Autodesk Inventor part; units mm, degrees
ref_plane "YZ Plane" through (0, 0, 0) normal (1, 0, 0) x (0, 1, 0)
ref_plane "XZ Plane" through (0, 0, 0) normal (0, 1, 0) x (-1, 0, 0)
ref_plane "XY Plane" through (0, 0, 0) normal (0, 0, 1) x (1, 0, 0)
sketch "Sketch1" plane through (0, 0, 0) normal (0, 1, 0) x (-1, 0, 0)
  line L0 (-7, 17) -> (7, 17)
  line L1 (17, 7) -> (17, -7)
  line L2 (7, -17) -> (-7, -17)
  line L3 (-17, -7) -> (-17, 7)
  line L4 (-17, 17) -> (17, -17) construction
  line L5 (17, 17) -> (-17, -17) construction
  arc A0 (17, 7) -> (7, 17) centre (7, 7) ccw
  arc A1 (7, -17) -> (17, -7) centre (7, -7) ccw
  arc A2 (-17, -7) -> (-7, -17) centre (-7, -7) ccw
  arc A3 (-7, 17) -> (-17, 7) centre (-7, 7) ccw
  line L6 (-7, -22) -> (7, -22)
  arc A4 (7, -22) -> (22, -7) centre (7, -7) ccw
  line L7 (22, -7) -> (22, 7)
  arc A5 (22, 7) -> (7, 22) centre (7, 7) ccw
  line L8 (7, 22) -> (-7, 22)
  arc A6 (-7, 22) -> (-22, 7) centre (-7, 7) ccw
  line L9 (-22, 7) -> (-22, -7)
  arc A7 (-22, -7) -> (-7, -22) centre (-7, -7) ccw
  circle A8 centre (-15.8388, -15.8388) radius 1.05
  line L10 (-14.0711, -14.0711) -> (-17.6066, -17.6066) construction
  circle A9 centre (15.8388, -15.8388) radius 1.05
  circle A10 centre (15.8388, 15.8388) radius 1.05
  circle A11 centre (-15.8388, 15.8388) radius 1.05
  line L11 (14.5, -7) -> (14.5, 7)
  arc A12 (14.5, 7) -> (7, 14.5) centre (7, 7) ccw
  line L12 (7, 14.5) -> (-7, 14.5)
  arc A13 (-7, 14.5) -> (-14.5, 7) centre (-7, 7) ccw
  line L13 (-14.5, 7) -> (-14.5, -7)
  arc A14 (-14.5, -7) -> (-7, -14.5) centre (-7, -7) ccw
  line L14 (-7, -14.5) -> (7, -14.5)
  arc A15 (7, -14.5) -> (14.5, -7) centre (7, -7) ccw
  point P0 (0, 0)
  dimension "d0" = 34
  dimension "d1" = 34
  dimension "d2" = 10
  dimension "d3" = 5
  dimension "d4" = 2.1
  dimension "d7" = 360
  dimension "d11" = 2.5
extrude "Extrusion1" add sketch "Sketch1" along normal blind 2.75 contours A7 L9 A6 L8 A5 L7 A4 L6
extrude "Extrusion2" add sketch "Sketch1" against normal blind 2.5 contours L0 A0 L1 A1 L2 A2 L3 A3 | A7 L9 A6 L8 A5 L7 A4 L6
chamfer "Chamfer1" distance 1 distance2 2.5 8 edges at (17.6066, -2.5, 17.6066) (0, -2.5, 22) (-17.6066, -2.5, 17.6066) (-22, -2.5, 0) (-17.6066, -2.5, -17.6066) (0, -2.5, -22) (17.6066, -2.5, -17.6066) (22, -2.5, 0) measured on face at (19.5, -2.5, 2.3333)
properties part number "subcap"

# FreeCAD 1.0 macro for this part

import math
import FreeCAD as App
import Part
import Sketcher
from FreeCAD import Vector
Q = App.Units.Quantity


def edges_at(feature, points):
    """Names of the edges that pass closest to the given points."""
    edges = feature.Shape.Edges
    near = lambda p: min(range(len(edges)), key=lambda i: edges[i].distToShape(Part.Vertex(*p))[0])
    return sorted({f"Edge{near(p) + 1}" for p in points})

doc = App.newDocument("Part")
body = doc.addObject("PartDesign::Body", "Body")

# Sketch on XZ plane
sketch1 = body.newObject("Sketcher::SketchObject", "Sketch")
sketch1.AttachmentSupport = (doc.getObject("XZ_Plane"), [""])
sketch1.MapMode = "FlatFace"
sketch1.addGeometry(Part.ArcOfCircle(Part.Circle(Vector(7, -7, 0), Vector(0, 0, 1), 15), math.radians(-90), math.radians(0)), False)
sketch1.addGeometry(Part.LineSegment(Vector(7, -22, 0), Vector(-7, -22, 0)), False)
sketch1.addGeometry(Part.ArcOfCircle(Part.Circle(Vector(-7, -7, 0), Vector(0, 0, 1), 15), math.radians(180), math.radians(270)), False)
sketch1.addGeometry(Part.LineSegment(Vector(-22, -7, 0), Vector(-22, 7, 0)), False)
sketch1.addGeometry(Part.ArcOfCircle(Part.Circle(Vector(-7, 7, 0), Vector(0, 0, 1), 15), math.radians(90), math.radians(180)), False)
sketch1.addGeometry(Part.LineSegment(Vector(-7, 22, 0), Vector(7, 22, 0)), False)
sketch1.addGeometry(Part.ArcOfCircle(Part.Circle(Vector(7, 7, 0), Vector(0, 0, 1), 15), math.radians(0), math.radians(90)), False)
sketch1.addGeometry(Part.LineSegment(Vector(22, 7, 0), Vector(22, -7, 0)), False)
sketch1.addGeometry(Part.Circle(Vector(15.8388, -15.8388, 0), Vector(0, 0, 1), 1.05), False)
sketch1.addGeometry(Part.Circle(Vector(-15.8388, -15.8388, 0), Vector(0, 0, 1), 1.05), False)
sketch1.addGeometry(Part.Circle(Vector(15.8388, 15.8388, 0), Vector(0, 0, 1), 1.05), False)
sketch1.addGeometry(Part.ArcOfCircle(Part.Circle(Vector(7, 7, 0), Vector(0, 0, 1), 10), math.radians(0), math.radians(90)), False)
sketch1.addGeometry(Part.LineSegment(Vector(7, 17, 0), Vector(-7, 17, 0)), False)
sketch1.addGeometry(Part.ArcOfCircle(Part.Circle(Vector(-7, 7, 0), Vector(0, 0, 1), 10), math.radians(90), math.radians(180)), False)
sketch1.addGeometry(Part.LineSegment(Vector(-17, 7, 0), Vector(-17, -7, 0)), False)
sketch1.addGeometry(Part.ArcOfCircle(Part.Circle(Vector(-7, -7, 0), Vector(0, 0, 1), 10), math.radians(180), math.radians(270)), False)
sketch1.addGeometry(Part.LineSegment(Vector(-7, -17, 0), Vector(7, -17, 0)), False)
sketch1.addGeometry(Part.ArcOfCircle(Part.Circle(Vector(7, -7, 0), Vector(0, 0, 1), 10), math.radians(-90), math.radians(0)), False)
sketch1.addGeometry(Part.LineSegment(Vector(17, -7, 0), Vector(17, 7, 0)), False)
sketch1.addGeometry(Part.Circle(Vector(-15.8388, 15.8388, 0), Vector(0, 0, 1), 1.05), False)
sketch1.addConstraint(Sketcher.Constraint("Tangent", 0, 1, 1, 1))
sketch1.addConstraint(Sketcher.Constraint("Tangent", 1, 2, 2, 2))
sketch1.addConstraint(Sketcher.Constraint("Tangent", 2, 1, 3, 1))
sketch1.addConstraint(Sketcher.Constraint("Tangent", 3, 2, 4, 2))
sketch1.addConstraint(Sketcher.Constraint("Tangent", 4, 1, 5, 1))
sketch1.addConstraint(Sketcher.Constraint("Tangent", 5, 2, 6, 2))
sketch1.addConstraint(Sketcher.Constraint("Tangent", 6, 1, 7, 1))
sketch1.addConstraint(Sketcher.Constraint("Tangent", 7, 2, 0, 2))
sketch1.addConstraint(Sketcher.Constraint("Tangent", 11, 2, 12, 1))
sketch1.addConstraint(Sketcher.Constraint("Tangent", 12, 2, 13, 1))
sketch1.addConstraint(Sketcher.Constraint("Tangent", 13, 2, 14, 1))
sketch1.addConstraint(Sketcher.Constraint("Tangent", 14, 2, 15, 1))
sketch1.addConstraint(Sketcher.Constraint("Tangent", 15, 2, 16, 1))
sketch1.addConstraint(Sketcher.Constraint("Tangent", 16, 2, 17, 1))
sketch1.addConstraint(Sketcher.Constraint("Tangent", 17, 2, 18, 1))
sketch1.addConstraint(Sketcher.Constraint("Tangent", 18, 2, 11, 1))
sketch1.addConstraint(Sketcher.Constraint("Horizontal", 1))
sketch1.addConstraint(Sketcher.Constraint("Vertical", 3))
sketch1.addConstraint(Sketcher.Constraint("Horizontal", 5))
sketch1.addConstraint(Sketcher.Constraint("Vertical", 7))
sketch1.addConstraint(Sketcher.Constraint("Horizontal", 12))
sketch1.addConstraint(Sketcher.Constraint("Vertical", 14))
sketch1.addConstraint(Sketcher.Constraint("Horizontal", 16))
sketch1.addConstraint(Sketcher.Constraint("Vertical", 18))
sketch1.addConstraint(Sketcher.Constraint("Coincident", 11, 3, 6, 3))
sketch1.addConstraint(Sketcher.Constraint("Coincident", 13, 3, 4, 3))
sketch1.addConstraint(Sketcher.Constraint("Coincident", 15, 3, 2, 3))
sketch1.addConstraint(Sketcher.Constraint("Equal", 0, 2))
sketch1.addConstraint(Sketcher.Constraint("Equal", 2, 4))
sketch1.addConstraint(Sketcher.Constraint("Equal", 4, 6))
sketch1.addConstraint(Sketcher.Constraint("Equal", 8, 9))
sketch1.addConstraint(Sketcher.Constraint("Equal", 9, 10))
sketch1.addConstraint(Sketcher.Constraint("Equal", 15, 17))
sketch1.addConstraint(Sketcher.Constraint("Equal", 10, 19))
sketch1.addConstraint(Sketcher.Constraint("Symmetric", 0, 3, 4, 3, -1, 1))
sketch1.addConstraint(Sketcher.Constraint("Symmetric", 9, 3, 10, 3, -1, 1))
sketch1.addConstraint(Sketcher.Constraint("Symmetric", 8, 3, 19, 3, -1, 1))
sketch1.addConstraint(Sketcher.Constraint("Symmetric", 8, 3, 9, 3, -2))
sketch1.addConstraint(Sketcher.Constraint("Equal", 16, 3))
sketch1.addConstraint(Sketcher.Constraint("Radius", 11, Q("10 mm")))
sketch1.addConstraint(Sketcher.Constraint("Diameter", 8, Q("2.1 mm")))
sketch1.addConstraint(Sketcher.Constraint("Radius", 0, Q("15 mm")))
sketch1.addConstraint(Sketcher.Constraint("DistanceX", 1, 2, 1, 1, Q("14 mm")))
sketch1.addConstraint(Sketcher.Constraint("DistanceX", -1, 1, 8, 3, Q("15.8388 mm")))
sketch1.addConstraint(Sketcher.Constraint("DistanceY", 8, 3, -1, 1, Q("15.8388 mm")))
pad1 = body.newObject("PartDesign::Pad", "Pad")
pad1.Profile = sketch1
pad1.Length = 2.75
pad1.Reversed = True

# Sketch on XZ plane
sketch2 = body.newObject("Sketcher::SketchObject", "Sketch001")
sketch2.AttachmentSupport = (doc.getObject("XZ_Plane"), [""])
sketch2.MapMode = "FlatFace"
sketch2.addGeometry(Part.ArcOfCircle(Part.Circle(Vector(7, -7, 0), Vector(0, 0, 1), 15), math.radians(-90), math.radians(0)), False)
sketch2.addGeometry(Part.LineSegment(Vector(7, -22, 0), Vector(-7, -22, 0)), False)
sketch2.addGeometry(Part.ArcOfCircle(Part.Circle(Vector(-7, -7, 0), Vector(0, 0, 1), 15), math.radians(180), math.radians(270)), False)
sketch2.addGeometry(Part.LineSegment(Vector(-22, -7, 0), Vector(-22, 7, 0)), False)
sketch2.addGeometry(Part.ArcOfCircle(Part.Circle(Vector(-7, 7, 0), Vector(0, 0, 1), 15), math.radians(90), math.radians(180)), False)
sketch2.addGeometry(Part.LineSegment(Vector(-7, 22, 0), Vector(7, 22, 0)), False)
sketch2.addGeometry(Part.ArcOfCircle(Part.Circle(Vector(7, 7, 0), Vector(0, 0, 1), 15), math.radians(0), math.radians(90)), False)
sketch2.addGeometry(Part.LineSegment(Vector(22, 7, 0), Vector(22, -7, 0)), False)
sketch2.addGeometry(Part.LineSegment(Vector(-14.5, 7, 0), Vector(-14.5, -7, 0)), False)
sketch2.addGeometry(Part.ArcOfCircle(Part.Circle(Vector(-7, -7, 0), Vector(0, 0, 1), 7.5), math.radians(180), math.radians(270)), False)
sketch2.addGeometry(Part.LineSegment(Vector(-7, -14.5, 0), Vector(7, -14.5, 0)), False)
sketch2.addGeometry(Part.ArcOfCircle(Part.Circle(Vector(7, -7, 0), Vector(0, 0, 1), 7.5), math.radians(-90), math.radians(0)), False)
sketch2.addGeometry(Part.LineSegment(Vector(14.5, -7, 0), Vector(14.5, 7, 0)), False)
sketch2.addGeometry(Part.ArcOfCircle(Part.Circle(Vector(7, 7, 0), Vector(0, 0, 1), 7.5), math.radians(0), math.radians(90)), False)
sketch2.addGeometry(Part.LineSegment(Vector(7, 14.5, 0), Vector(-7, 14.5, 0)), False)
sketch2.addGeometry(Part.ArcOfCircle(Part.Circle(Vector(-7, 7, 0), Vector(0, 0, 1), 7.5), math.radians(90), math.radians(180)), False)
sketch2.addGeometry(Part.Circle(Vector(15.8388, -15.8388, 0), Vector(0, 0, 1), 1.05), False)
sketch2.addGeometry(Part.Circle(Vector(-15.8388, -15.8388, 0), Vector(0, 0, 1), 1.05), False)
sketch2.addGeometry(Part.Circle(Vector(15.8388, 15.8388, 0), Vector(0, 0, 1), 1.05), False)
sketch2.addGeometry(Part.Circle(Vector(-15.8388, 15.8388, 0), Vector(0, 0, 1), 1.05), False)
sketch2.addConstraint(Sketcher.Constraint("Tangent", 0, 1, 1, 1))
sketch2.addConstraint(Sketcher.Constraint("Tangent", 1, 2, 2, 2))
sketch2.addConstraint(Sketcher.Constraint("Tangent", 2, 1, 3, 1))
sketch2.addConstraint(Sketcher.Constraint("Tangent", 3, 2, 4, 2))
sketch2.addConstraint(Sketcher.Constraint("Tangent", 4, 1, 5, 1))
sketch2.addConstraint(Sketcher.Constraint("Tangent", 5, 2, 6, 2))
sketch2.addConstraint(Sketcher.Constraint("Tangent", 6, 1, 7, 1))
sketch2.addConstraint(Sketcher.Constraint("Tangent", 7, 2, 0, 2))
sketch2.addConstraint(Sketcher.Constraint("Tangent", 8, 2, 9, 1))
sketch2.addConstraint(Sketcher.Constraint("Tangent", 9, 2, 10, 1))
sketch2.addConstraint(Sketcher.Constraint("Tangent", 10, 2, 11, 1))
sketch2.addConstraint(Sketcher.Constraint("Tangent", 11, 2, 12, 1))
sketch2.addConstraint(Sketcher.Constraint("Tangent", 12, 2, 13, 1))
sketch2.addConstraint(Sketcher.Constraint("Tangent", 13, 2, 14, 1))
sketch2.addConstraint(Sketcher.Constraint("Tangent", 14, 2, 15, 1))
sketch2.addConstraint(Sketcher.Constraint("Tangent", 15, 2, 8, 1))
sketch2.addConstraint(Sketcher.Constraint("Horizontal", 1))
sketch2.addConstraint(Sketcher.Constraint("Vertical", 3))
sketch2.addConstraint(Sketcher.Constraint("Horizontal", 5))
sketch2.addConstraint(Sketcher.Constraint("Vertical", 7))
sketch2.addConstraint(Sketcher.Constraint("Vertical", 8))
sketch2.addConstraint(Sketcher.Constraint("Horizontal", 10))
sketch2.addConstraint(Sketcher.Constraint("Vertical", 12))
sketch2.addConstraint(Sketcher.Constraint("Horizontal", 14))
sketch2.addConstraint(Sketcher.Constraint("Coincident", 9, 3, 2, 3))
sketch2.addConstraint(Sketcher.Constraint("Coincident", 11, 3, 0, 3))
sketch2.addConstraint(Sketcher.Constraint("Coincident", 13, 3, 6, 3))
sketch2.addConstraint(Sketcher.Constraint("Equal", 0, 2))
sketch2.addConstraint(Sketcher.Constraint("Equal", 2, 4))
sketch2.addConstraint(Sketcher.Constraint("Equal", 4, 6))
sketch2.addConstraint(Sketcher.Constraint("Equal", 13, 15))
sketch2.addConstraint(Sketcher.Constraint("Equal", 16, 17))
sketch2.addConstraint(Sketcher.Constraint("Equal", 17, 18))
sketch2.addConstraint(Sketcher.Constraint("Equal", 18, 19))
sketch2.addConstraint(Sketcher.Constraint("Symmetric", 0, 3, 4, 3, -1, 1))
sketch2.addConstraint(Sketcher.Constraint("Symmetric", 17, 3, 18, 3, -1, 1))
sketch2.addConstraint(Sketcher.Constraint("Symmetric", 16, 3, 19, 3, -1, 1))
sketch2.addConstraint(Sketcher.Constraint("Symmetric", 16, 3, 17, 3, -2))
sketch2.addConstraint(Sketcher.Constraint("Equal", 14, 3))
sketch2.addConstraint(Sketcher.Constraint("Diameter", 16, Q("2.1 mm")))
sketch2.addConstraint(Sketcher.Constraint("Radius", 0, Q("15 mm")))
sketch2.addConstraint(Sketcher.Constraint("Radius", 9, Q("7.5 mm")))
sketch2.addConstraint(Sketcher.Constraint("DistanceX", 1, 2, 1, 1, Q("14 mm")))
sketch2.addConstraint(Sketcher.Constraint("DistanceX", -1, 1, 16, 3, Q("15.8388 mm")))
sketch2.addConstraint(Sketcher.Constraint("DistanceY", 16, 3, -1, 1, Q("15.8388 mm")))
pad2 = body.newObject("PartDesign::Pad", "Pad001")
pad2.Profile = sketch2
pad2.Length = 2.5
doc.recompute()

chamfer = body.newObject("PartDesign::Chamfer", "Chamfer")
chamfer.Base = (pad2, edges_at(pad2, [
    (17.607, -2.5, 17.607),
    (0, -2.5, 22),
    (-17.607, -2.5, 17.607),
    (-22, -2.5, 0),
    (-17.607, -2.5, -17.607),
    (0, -2.5, -22),
    (17.607, -2.5, -17.607),
    (22, -2.5, 0),
]))
chamfer.ChamferType = "Two distances"
chamfer.Size = 1
chamfer.Size2 = 2.5

doc.recompute()
